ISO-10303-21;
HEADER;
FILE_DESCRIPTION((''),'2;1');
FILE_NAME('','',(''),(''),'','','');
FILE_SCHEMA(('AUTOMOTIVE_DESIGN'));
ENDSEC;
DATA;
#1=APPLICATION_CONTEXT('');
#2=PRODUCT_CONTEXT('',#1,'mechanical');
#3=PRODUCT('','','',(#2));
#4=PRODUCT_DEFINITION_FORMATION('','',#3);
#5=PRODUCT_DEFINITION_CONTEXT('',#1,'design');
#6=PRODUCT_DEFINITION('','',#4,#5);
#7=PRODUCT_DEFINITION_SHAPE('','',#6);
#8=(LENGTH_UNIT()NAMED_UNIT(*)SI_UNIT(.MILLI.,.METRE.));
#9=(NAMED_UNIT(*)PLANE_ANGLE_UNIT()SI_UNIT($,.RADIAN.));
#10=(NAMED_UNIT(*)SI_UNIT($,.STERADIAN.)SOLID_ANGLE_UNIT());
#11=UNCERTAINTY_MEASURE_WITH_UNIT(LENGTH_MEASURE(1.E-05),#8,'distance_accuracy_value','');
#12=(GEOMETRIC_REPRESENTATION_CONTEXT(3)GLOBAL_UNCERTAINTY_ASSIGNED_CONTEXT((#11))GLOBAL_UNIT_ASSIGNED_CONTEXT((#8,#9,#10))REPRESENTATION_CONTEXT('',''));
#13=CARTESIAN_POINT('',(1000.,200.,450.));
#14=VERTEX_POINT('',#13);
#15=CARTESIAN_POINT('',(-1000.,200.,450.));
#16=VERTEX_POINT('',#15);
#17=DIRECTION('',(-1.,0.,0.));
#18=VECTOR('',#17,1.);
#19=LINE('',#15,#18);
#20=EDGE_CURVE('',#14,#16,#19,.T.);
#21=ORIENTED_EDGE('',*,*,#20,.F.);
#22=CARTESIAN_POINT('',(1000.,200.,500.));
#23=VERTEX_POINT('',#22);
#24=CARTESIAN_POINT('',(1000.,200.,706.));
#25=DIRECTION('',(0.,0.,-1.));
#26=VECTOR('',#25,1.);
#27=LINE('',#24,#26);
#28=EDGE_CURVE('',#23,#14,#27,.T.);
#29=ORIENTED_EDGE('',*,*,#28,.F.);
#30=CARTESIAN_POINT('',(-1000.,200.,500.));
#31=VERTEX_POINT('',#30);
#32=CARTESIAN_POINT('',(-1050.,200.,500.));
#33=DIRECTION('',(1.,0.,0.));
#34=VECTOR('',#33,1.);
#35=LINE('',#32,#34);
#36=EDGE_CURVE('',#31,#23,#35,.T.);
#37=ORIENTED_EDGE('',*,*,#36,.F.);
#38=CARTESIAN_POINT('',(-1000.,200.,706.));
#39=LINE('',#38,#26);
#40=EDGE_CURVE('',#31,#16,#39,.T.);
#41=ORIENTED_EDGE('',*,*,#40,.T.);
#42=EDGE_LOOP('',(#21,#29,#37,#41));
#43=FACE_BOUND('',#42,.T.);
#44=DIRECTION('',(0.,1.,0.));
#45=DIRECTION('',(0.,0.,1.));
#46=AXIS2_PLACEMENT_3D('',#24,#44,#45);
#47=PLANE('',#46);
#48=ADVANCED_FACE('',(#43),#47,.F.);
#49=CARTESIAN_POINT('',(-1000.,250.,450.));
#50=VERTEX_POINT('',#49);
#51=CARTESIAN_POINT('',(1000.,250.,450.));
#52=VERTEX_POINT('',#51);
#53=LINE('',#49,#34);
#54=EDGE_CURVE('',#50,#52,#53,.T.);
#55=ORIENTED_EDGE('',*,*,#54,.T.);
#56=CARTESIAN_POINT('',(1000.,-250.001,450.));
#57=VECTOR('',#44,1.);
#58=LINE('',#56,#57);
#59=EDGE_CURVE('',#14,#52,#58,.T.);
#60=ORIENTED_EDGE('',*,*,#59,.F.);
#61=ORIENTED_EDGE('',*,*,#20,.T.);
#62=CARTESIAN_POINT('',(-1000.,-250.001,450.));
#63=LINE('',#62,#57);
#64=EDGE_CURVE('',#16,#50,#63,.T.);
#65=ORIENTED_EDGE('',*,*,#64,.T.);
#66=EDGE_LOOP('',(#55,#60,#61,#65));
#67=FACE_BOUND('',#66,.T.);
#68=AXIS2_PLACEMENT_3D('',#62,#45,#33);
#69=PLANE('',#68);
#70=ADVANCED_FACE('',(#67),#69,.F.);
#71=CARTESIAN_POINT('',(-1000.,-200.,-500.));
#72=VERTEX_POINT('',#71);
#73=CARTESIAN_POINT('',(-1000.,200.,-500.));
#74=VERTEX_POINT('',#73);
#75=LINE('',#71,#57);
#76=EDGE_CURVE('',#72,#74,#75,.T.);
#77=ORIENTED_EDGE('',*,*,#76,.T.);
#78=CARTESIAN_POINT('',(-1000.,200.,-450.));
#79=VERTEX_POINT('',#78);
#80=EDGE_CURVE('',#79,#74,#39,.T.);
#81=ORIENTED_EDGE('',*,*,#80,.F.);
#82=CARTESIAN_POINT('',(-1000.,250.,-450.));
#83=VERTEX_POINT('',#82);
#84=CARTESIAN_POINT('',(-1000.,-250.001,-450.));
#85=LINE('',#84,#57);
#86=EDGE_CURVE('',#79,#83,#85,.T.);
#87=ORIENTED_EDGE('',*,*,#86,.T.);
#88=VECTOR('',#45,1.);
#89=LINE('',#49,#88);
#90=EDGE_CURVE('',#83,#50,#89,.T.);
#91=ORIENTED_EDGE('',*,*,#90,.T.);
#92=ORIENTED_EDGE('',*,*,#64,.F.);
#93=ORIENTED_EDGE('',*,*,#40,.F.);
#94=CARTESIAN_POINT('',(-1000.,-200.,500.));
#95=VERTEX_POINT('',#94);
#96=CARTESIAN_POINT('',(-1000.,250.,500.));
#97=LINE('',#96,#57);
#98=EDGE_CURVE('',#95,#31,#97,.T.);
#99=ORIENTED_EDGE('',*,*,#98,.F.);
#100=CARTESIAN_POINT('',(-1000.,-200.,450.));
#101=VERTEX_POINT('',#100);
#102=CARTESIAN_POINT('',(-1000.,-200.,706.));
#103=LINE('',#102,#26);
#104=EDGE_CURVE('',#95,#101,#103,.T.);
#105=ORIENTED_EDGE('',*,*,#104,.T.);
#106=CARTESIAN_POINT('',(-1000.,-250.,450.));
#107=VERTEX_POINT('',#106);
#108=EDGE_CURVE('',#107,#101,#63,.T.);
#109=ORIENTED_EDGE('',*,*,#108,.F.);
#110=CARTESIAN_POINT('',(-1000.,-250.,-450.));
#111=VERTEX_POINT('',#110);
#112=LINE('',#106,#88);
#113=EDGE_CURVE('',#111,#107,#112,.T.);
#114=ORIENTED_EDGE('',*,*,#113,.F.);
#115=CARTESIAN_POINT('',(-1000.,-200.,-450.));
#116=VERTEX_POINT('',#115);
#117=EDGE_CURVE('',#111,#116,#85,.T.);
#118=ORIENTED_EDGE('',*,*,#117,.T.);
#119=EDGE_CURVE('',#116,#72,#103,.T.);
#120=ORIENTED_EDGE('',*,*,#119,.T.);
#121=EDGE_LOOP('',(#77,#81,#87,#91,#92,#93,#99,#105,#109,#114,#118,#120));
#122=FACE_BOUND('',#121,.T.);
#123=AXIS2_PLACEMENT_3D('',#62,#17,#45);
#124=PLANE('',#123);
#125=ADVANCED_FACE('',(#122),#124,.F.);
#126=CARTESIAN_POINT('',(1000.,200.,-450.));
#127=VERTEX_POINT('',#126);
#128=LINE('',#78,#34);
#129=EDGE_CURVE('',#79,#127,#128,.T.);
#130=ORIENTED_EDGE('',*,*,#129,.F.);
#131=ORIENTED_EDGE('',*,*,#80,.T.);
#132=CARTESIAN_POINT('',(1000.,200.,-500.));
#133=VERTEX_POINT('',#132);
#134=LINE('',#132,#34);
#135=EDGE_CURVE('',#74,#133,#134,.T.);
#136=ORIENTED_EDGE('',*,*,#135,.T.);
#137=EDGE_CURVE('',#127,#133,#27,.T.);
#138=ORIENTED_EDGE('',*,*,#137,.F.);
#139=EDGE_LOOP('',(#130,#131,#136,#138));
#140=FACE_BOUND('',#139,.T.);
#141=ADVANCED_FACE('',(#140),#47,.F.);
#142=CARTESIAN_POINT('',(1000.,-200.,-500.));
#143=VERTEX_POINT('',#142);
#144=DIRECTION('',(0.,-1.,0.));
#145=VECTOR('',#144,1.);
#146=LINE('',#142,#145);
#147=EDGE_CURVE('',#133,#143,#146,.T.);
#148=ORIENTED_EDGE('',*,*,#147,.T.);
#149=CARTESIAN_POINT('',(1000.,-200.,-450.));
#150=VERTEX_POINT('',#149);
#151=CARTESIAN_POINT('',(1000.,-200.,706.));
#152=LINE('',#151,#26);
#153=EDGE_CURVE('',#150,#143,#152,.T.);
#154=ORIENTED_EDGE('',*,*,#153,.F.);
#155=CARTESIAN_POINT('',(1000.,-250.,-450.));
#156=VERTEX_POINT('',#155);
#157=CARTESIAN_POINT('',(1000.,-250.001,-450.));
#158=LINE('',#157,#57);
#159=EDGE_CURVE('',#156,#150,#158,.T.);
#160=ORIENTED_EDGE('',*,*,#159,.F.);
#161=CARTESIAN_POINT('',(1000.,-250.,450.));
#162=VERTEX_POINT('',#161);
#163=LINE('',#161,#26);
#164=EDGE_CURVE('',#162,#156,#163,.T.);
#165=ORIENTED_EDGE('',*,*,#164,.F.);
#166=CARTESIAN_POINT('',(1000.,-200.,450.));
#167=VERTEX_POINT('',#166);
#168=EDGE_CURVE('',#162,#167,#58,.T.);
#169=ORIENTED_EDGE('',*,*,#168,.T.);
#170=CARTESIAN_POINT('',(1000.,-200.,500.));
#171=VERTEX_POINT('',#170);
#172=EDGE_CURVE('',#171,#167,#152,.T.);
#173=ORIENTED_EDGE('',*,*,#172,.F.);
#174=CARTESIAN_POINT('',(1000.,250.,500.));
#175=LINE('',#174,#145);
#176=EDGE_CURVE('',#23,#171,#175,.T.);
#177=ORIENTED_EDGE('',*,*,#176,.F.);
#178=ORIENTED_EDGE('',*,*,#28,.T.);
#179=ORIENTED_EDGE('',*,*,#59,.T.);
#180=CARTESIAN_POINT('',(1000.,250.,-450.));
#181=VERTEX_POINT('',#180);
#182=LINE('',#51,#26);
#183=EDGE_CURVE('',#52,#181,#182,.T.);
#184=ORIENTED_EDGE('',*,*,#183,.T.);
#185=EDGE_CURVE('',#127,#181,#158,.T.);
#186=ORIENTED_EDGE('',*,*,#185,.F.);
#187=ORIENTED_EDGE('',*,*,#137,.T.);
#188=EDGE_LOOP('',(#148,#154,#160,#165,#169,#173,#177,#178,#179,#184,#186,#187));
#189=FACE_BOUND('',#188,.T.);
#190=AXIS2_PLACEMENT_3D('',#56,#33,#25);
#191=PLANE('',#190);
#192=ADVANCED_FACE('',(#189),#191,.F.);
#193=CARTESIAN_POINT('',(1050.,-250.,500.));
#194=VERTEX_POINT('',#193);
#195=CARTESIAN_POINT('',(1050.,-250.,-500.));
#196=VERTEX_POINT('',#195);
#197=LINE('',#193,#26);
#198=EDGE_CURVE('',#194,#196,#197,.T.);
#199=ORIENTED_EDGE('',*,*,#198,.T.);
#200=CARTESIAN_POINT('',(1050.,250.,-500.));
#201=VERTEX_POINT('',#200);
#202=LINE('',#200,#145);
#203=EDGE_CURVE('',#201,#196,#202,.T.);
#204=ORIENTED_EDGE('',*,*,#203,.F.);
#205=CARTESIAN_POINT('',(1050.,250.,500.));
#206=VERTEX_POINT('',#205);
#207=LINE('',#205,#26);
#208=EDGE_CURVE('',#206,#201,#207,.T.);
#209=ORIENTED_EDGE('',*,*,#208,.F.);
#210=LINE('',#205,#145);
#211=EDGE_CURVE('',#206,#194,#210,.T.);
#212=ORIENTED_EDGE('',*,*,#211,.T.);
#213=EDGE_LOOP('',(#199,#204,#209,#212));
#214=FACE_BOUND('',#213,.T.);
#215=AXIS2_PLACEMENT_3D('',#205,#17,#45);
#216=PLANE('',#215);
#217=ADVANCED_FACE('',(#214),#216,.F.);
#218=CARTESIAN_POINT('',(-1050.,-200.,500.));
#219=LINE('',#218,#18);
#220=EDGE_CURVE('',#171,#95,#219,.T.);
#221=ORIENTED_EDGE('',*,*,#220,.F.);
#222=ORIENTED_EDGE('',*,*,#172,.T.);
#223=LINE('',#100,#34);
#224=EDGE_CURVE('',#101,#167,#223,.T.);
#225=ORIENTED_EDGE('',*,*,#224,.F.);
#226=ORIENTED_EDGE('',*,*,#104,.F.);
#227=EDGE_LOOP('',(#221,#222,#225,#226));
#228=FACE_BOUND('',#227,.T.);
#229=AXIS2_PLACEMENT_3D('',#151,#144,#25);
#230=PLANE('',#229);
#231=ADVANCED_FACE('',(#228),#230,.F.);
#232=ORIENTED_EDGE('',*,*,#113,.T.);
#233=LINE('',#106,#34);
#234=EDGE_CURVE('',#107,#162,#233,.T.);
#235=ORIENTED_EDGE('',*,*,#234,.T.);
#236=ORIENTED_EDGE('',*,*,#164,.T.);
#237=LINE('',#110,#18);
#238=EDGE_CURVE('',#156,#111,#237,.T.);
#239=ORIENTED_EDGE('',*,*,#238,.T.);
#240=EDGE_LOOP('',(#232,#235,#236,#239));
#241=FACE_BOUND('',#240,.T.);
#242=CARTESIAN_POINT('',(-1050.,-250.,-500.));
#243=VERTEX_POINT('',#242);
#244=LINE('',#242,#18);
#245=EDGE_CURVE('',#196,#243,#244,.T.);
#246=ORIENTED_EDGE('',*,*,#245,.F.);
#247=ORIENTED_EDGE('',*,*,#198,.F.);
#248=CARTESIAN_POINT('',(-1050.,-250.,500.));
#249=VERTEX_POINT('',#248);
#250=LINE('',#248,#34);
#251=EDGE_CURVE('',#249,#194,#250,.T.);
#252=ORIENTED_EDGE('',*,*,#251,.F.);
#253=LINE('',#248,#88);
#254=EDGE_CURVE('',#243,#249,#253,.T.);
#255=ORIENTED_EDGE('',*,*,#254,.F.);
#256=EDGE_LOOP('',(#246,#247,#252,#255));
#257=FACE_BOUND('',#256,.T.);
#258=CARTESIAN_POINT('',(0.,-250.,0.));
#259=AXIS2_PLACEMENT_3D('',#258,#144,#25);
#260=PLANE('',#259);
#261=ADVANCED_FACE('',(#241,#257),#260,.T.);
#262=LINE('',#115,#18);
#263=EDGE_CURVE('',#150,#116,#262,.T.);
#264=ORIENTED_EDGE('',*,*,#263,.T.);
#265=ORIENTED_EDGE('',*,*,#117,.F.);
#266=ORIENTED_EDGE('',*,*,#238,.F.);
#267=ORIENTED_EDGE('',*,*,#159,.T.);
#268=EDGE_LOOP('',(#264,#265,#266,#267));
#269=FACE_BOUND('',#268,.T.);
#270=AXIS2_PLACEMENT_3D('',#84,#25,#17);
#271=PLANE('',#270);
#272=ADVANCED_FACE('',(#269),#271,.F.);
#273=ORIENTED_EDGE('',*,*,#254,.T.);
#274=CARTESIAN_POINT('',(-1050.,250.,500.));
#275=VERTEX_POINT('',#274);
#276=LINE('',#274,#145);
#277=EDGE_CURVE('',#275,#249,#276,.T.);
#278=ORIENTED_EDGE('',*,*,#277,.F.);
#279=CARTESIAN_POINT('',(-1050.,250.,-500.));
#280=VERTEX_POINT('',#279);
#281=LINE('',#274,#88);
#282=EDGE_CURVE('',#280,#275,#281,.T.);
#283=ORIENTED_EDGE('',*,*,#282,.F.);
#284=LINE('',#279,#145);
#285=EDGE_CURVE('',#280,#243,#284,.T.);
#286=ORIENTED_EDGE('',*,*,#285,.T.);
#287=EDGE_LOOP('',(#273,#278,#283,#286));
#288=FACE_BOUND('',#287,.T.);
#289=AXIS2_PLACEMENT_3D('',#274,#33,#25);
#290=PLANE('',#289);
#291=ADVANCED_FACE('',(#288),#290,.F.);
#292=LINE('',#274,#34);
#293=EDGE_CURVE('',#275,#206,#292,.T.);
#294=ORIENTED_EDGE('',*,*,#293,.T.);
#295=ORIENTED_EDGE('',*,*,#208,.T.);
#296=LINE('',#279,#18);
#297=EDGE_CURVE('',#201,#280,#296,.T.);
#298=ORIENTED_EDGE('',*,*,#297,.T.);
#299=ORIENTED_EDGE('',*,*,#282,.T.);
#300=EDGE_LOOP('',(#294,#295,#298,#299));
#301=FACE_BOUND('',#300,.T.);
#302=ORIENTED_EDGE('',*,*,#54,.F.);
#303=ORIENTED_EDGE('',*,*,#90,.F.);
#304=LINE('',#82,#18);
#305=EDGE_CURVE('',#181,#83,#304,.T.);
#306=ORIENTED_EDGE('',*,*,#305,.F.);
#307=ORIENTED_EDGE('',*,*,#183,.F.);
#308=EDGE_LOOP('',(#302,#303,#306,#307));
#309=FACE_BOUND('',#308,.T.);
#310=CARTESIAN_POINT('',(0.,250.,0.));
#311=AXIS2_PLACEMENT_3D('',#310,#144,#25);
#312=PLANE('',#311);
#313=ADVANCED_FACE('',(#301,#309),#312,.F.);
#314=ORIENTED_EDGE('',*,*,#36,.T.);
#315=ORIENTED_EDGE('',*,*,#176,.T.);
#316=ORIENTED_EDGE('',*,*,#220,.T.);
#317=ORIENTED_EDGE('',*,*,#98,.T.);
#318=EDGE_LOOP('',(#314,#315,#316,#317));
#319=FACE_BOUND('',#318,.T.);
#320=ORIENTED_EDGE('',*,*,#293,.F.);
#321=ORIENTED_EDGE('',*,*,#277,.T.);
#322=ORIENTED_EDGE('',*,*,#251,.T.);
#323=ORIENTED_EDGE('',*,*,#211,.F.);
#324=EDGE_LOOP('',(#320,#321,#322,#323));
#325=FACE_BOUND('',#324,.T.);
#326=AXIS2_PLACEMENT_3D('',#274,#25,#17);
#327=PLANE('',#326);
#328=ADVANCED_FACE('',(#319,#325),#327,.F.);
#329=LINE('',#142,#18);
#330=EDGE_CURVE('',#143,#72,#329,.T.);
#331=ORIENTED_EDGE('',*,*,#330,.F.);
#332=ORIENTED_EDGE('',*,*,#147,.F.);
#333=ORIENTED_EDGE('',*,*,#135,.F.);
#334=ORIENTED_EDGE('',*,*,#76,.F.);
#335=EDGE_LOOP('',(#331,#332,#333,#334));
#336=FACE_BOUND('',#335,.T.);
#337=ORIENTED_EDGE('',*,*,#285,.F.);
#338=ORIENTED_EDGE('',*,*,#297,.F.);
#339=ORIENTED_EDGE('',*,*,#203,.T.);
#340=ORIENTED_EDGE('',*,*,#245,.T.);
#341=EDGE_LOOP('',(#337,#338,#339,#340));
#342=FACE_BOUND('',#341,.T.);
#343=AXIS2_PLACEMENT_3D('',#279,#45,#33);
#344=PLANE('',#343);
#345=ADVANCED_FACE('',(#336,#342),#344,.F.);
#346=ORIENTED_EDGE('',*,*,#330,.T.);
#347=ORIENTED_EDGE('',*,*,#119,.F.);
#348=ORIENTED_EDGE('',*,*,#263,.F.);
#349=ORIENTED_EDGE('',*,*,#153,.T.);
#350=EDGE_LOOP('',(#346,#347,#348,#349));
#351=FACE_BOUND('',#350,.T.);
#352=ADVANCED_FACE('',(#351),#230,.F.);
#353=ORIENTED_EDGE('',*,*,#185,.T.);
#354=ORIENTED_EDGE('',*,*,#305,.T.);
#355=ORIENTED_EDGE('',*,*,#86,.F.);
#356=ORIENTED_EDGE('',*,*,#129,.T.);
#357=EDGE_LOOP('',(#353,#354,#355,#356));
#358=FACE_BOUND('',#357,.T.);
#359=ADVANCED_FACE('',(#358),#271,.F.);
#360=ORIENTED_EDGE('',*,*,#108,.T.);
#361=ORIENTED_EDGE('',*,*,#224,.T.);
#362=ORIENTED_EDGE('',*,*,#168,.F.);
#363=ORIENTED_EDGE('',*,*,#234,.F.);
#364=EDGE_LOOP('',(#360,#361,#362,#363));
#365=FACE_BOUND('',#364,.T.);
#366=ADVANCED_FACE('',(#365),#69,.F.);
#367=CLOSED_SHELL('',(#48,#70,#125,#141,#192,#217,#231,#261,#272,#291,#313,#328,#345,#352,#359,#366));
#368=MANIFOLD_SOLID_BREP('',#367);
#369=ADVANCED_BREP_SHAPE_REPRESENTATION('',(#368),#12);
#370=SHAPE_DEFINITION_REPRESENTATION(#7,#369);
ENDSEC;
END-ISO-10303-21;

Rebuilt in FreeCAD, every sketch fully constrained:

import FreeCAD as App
import Part
import Sketcher
from FreeCAD import Vector
Q = App.Units.Quantity

doc = App.newDocument("Part")
params = doc.addObject("Spreadsheet::Sheet", "Params")
for row, (alias, value) in enumerate([
    ("sketch1_width", "2100 mm"),
    ("sketch1_height", "1000 mm"),
    ("pad1_length", "500 mm"),
    ("sketch2_width", "2000 mm"),
    ("sketch2_height", "900 mm"),
    ("sketch3_width", "2000 mm"),
    ("sketch3_height", "400 mm"),
    ("pocket2_length", "1206 mm"),
], start=1):
    params.set(f"A{row}", alias)
    params.set(f"B{row}", "=" + value)
    params.setAlias(f"B{row}", alias)

body = doc.addObject("PartDesign::Body", "Body")

# Sketch on XZ plane
sketch1 = doc.addObject("Sketcher::SketchObject", "Sketch")
body.addObject(sketch1)
sketch1.AttachmentSupport = (doc.XZ_Plane, [""])
sketch1.MapMode = "FlatFace"
sketch1.addGeometry([
    Part.LineSegment(Vector(-1050, -500, 0), Vector(-1050, 500, 0)),
    Part.LineSegment(Vector(-1050, 500, 0), Vector(1050, 500, 0)),
    Part.LineSegment(Vector(1050, 500, 0), Vector(1050, -500, 0)),
    Part.LineSegment(Vector(1050, -500, 0), Vector(-1050, -500, 0)),
], False)
sketch1.addConstraint([
    Sketcher.Constraint("Coincident", 0, 2, 1, 1),
    Sketcher.Constraint("Coincident", 1, 2, 2, 1),
    Sketcher.Constraint("Coincident", 2, 2, 3, 1),
    Sketcher.Constraint("Coincident", 3, 2, 0, 1),
    Sketcher.Constraint("Vertical", 0),
    Sketcher.Constraint("Horizontal", 1),
    Sketcher.Constraint("Vertical", 2),
    Sketcher.Constraint("Horizontal", 3),
    Sketcher.Constraint("Symmetric", 0, 2, 2, 2, -1, 1),
    Sketcher.Constraint("DistanceX", 1, 1, 1, 2, Q("2100 mm")),
    Sketcher.Constraint("DistanceY", 0, 1, 0, 2, Q("1000 mm")),
])
sketch1.setExpression("Constraints[9]", "Params.sketch1_width")
sketch1.setExpression("Constraints[10]", "Params.sketch1_height")
pad1 = doc.addObject("PartDesign::Pad", "Pad")
body.addObject(pad1)
pad1.Profile = sketch1
pad1.setExpression("Length", "Params.pad1_length")
pad1.Midplane = True

# Sketch on XZ plane
sketch2 = doc.addObject("Sketcher::SketchObject", "Sketch001")
body.addObject(sketch2)
sketch2.AttachmentSupport = (doc.XZ_Plane, [""])
sketch2.MapMode = "FlatFace"
sketch2.AttachmentOffset = App.Placement(Vector(0, 0, -250), App.Rotation())
sketch2.addGeometry([
    Part.LineSegment(Vector(-1000, -450, 0), Vector(-1000, 450, 0)),
    Part.LineSegment(Vector(-1000, 450, 0), Vector(1000, 450, 0)),
    Part.LineSegment(Vector(1000, 450, 0), Vector(1000, -450, 0)),
    Part.LineSegment(Vector(1000, -450, 0), Vector(-1000, -450, 0)),
], False)
sketch2.addConstraint([
    Sketcher.Constraint("Coincident", 0, 2, 1, 1),
    Sketcher.Constraint("Coincident", 1, 2, 2, 1),
    Sketcher.Constraint("Coincident", 2, 2, 3, 1),
    Sketcher.Constraint("Coincident", 3, 2, 0, 1),
    Sketcher.Constraint("Vertical", 0),
    Sketcher.Constraint("Horizontal", 1),
    Sketcher.Constraint("Vertical", 2),
    Sketcher.Constraint("Horizontal", 3),
    Sketcher.Constraint("Symmetric", 0, 2, 2, 2, -1, 1),
    Sketcher.Constraint("DistanceX", 1, 1, 1, 2, Q("2000 mm")),
    Sketcher.Constraint("DistanceY", 0, 1, 0, 2, Q("900 mm")),
])
sketch2.setExpression("Constraints[9]", "Params.sketch2_width")
sketch2.setExpression("Constraints[10]", "Params.sketch2_height")
pocket1 = doc.addObject("PartDesign::Pocket", "Pocket")
body.addObject(pocket1)
pocket1.Profile = sketch2
pocket1.Type = "UpToFirst"
pocket1.Reversed = True

# Sketch on XY plane
sketch3 = doc.addObject("Sketcher::SketchObject", "Sketch002")
body.addObject(sketch3)
sketch3.AttachmentSupport = (doc.XY_Plane, [""])
sketch3.MapMode = "FlatFace"
sketch3.AttachmentOffset = App.Placement(Vector(0, 0, -500), App.Rotation())
sketch3.addGeometry([
    Part.LineSegment(Vector(1000, 200, 0), Vector(1000, -200, 0)),
    Part.LineSegment(Vector(1000, -200, 0), Vector(-1000, -200, 0)),
    Part.LineSegment(Vector(-1000, -200, 0), Vector(-1000, 200, 0)),
    Part.LineSegment(Vector(-1000, 200, 0), Vector(1000, 200, 0)),
], False)
sketch3.addConstraint([
    Sketcher.Constraint("Coincident", 0, 2, 1, 1),
    Sketcher.Constraint("Coincident", 1, 2, 2, 1),
    Sketcher.Constraint("Coincident", 2, 2, 3, 1),
    Sketcher.Constraint("Coincident", 3, 2, 0, 1),
    Sketcher.Constraint("Vertical", 0),
    Sketcher.Constraint("Horizontal", 1),
    Sketcher.Constraint("Vertical", 2),
    Sketcher.Constraint("Horizontal", 3),
    Sketcher.Constraint("Symmetric", 0, 2, 2, 2, -1, 1),
    Sketcher.Constraint("DistanceX", 1, 2, 1, 1, Q("2000 mm")),
    Sketcher.Constraint("DistanceY", 0, 2, 0, 1, Q("400 mm")),
])
sketch3.setExpression("Constraints[9]", "Params.sketch3_width")
sketch3.setExpression("Constraints[10]", "Params.sketch3_height")
pocket2 = doc.addObject("PartDesign::Pocket", "Pocket001")
body.addObject(pocket2)
pocket2.Profile = sketch3
pocket2.setExpression("Length", "Params.pocket2_length")
pocket2.Reversed = True

doc.recompute()
